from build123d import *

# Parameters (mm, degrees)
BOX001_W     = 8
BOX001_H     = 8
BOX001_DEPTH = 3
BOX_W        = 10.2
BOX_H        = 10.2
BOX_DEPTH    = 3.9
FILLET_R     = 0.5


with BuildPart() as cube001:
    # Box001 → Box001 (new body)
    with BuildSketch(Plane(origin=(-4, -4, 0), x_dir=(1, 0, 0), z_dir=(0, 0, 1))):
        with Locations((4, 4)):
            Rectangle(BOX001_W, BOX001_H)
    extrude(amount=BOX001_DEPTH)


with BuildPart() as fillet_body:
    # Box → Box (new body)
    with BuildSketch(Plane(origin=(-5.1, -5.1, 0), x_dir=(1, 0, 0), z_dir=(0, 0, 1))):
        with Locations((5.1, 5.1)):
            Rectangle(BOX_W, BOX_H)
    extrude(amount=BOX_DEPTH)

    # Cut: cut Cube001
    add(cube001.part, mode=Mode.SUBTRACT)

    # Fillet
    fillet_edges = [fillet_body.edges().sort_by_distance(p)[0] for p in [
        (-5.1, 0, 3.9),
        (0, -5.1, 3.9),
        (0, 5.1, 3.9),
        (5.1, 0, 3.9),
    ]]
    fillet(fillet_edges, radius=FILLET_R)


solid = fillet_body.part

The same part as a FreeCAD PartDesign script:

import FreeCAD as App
import Part
import Sketcher

V = App.Vector
Q = App.Units.Quantity


def edges_at(feature, points):
    """Names of the edges that pass closest to the given points."""
    edges = feature.Shape.Edges
    near = lambda p: min(range(len(edges)), key=lambda i: edges[i].distToShape(Part.Vertex(*p))[0])
    return sorted({f"Edge{near(p) + 1}" for p in points})

doc = App.newDocument("Part")
params = doc.addObject("Spreadsheet::Sheet", "Params")
for row, (alias, value) in enumerate([
    ("sketch1_width", "8 mm"),
    ("pad1_length", "3 mm"),
    ("sketch2_width", "10.2 mm"),
    ("pad2_length", "3.9 mm"),
    ("fillet_radius", "0.5 mm"),
], start=1):
    params.set(f"A{row}", alias)
    params.set(f"B{row}", "=" + value)
    params.setAlias(f"B{row}", alias)

body = doc.addObject("PartDesign::Body", "Body")

# Sketch on XY plane
sketch1 = body.newObject("Sketcher::SketchObject", "Sketch")
sketch1.AttachmentSupport = (doc.getObject("XY_Plane"), [""])
sketch1.MapMode = "FlatFace"
sketch1.addGeometry([
    Part.LineSegment(V(-4, 4, 0), V(-4, -4, 0)),
    Part.LineSegment(V(-4, -4, 0), V(4, -4, 0)),
    Part.LineSegment(V(4, -4, 0), V(4, 4, 0)),
    Part.LineSegment(V(4, 4, 0), V(-4, 4, 0)),
], False)
sketch1.addConstraint([
    Sketcher.Constraint("Coincident", 0, 2, 1, 1),
    Sketcher.Constraint("Coincident", 1, 2, 2, 1),
    Sketcher.Constraint("Coincident", 2, 2, 3, 1),
    Sketcher.Constraint("Coincident", 3, 2, 0, 1),
    Sketcher.Constraint("Vertical", 0),
    Sketcher.Constraint("Horizontal", 1),
    Sketcher.Constraint("Vertical", 2),
    Sketcher.Constraint("Horizontal", 3),
    Sketcher.Constraint("Symmetric", 0, 2, 2, 2, -1, 1),
    Sketcher.Constraint("Equal", 3, 0),
    Sketcher.Constraint("DistanceX", 1, 1, 1, 2, Q("8 mm")),
])
sketch1.setExpression("Constraints[10]", "Params.sketch1_width")
pad1 = body.newObject("PartDesign::Pad", "Pad")
pad1.Profile = sketch1
pad1.setExpression("Length", "Params.pad1_length")
body2 = doc.addObject("PartDesign::Body", "Body001")

# Sketch on XY plane
sketch2 = body2.newObject("Sketcher::SketchObject", "Sketch001")
sketch2.AttachmentSupport = (doc.getObject("XY_Plane001"), [""])
sketch2.MapMode = "FlatFace"
sketch2.addGeometry([
    Part.LineSegment(V(-5, 5, 0), V(-5, -5, 0)),
    Part.LineSegment(V(-5, -5, 0), V(5, -5, 0)),
    Part.LineSegment(V(5, -5, 0), V(5, 5, 0)),
    Part.LineSegment(V(5, 5, 0), V(-5, 5, 0)),
], False)
sketch2.addConstraint([
    Sketcher.Constraint("Coincident", 0, 2, 1, 1),
    Sketcher.Constraint("Coincident", 1, 2, 2, 1),
    Sketcher.Constraint("Coincident", 2, 2, 3, 1),
    Sketcher.Constraint("Coincident", 3, 2, 0, 1),
    Sketcher.Constraint("Vertical", 0),
    Sketcher.Constraint("Horizontal", 1),
    Sketcher.Constraint("Vertical", 2),
    Sketcher.Constraint("Horizontal", 3),
    Sketcher.Constraint("Symmetric", 0, 2, 2, 2, -1, 1),
    Sketcher.Constraint("Equal", 3, 0),
    Sketcher.Constraint("DistanceX", 1, 1, 1, 2, Q("10.2 mm")),
])
sketch2.setExpression("Constraints[10]", "Params.sketch2_width")
pad2 = body2.newObject("PartDesign::Pad", "Pad001")
pad2.Profile = sketch2
pad2.setExpression("Length", "Params.pad2_length")
doc.recompute()

boolean = body2.newObject("PartDesign::Boolean", "Boolean")
boolean.Type = "Cut"
boolean.addObjects([body])
doc.recompute()

fillet = body2.newObject("PartDesign::Fillet", "Fillet")
fillet.Base = (boolean, edges_at(boolean, [
    (-5.1, 0, 3.9),
    (0, -5.1, 3.9),
    (0, 5.1, 3.9),
    (5.1, 0, 3.9),
]))
fillet.setExpression("Radius", "Params.fillet_radius")

doc.recompute()
